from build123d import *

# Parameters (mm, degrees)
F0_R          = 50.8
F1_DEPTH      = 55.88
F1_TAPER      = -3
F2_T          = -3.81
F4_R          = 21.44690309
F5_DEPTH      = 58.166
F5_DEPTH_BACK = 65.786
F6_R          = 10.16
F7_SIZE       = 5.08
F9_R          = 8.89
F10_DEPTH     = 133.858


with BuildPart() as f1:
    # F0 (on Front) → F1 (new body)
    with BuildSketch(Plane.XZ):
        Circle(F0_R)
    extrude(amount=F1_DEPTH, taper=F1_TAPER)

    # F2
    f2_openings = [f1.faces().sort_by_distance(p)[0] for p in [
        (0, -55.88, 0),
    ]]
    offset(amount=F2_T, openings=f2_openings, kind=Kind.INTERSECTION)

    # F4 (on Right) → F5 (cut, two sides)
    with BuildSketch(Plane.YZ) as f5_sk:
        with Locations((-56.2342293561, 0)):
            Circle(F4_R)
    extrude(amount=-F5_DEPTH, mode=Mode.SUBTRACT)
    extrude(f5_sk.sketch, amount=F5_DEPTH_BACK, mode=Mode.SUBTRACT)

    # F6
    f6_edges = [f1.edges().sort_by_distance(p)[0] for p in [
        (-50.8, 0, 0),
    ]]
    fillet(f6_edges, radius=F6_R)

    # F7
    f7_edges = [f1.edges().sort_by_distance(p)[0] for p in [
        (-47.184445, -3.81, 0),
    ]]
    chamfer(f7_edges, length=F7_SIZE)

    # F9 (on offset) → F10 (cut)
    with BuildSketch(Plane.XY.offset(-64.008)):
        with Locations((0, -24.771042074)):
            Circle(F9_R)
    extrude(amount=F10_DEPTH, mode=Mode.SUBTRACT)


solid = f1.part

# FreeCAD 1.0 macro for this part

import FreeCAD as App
import Part
import Sketcher

V = App.Vector
Q = App.Units.Quantity


def edges_at(feature, points):
    """Names of the edges that pass closest to the given points."""
    edges = feature.Shape.Edges
    near = lambda p: min(range(len(edges)), key=lambda i: edges[i].distToShape(Part.Vertex(*p))[0])
    return sorted({f"Edge{near(p) + 1}" for p in points})


def faces_at(feature, points):
    """Names of the faces that lie closest to the given points."""
    faces = feature.Shape.Faces
    near = lambda p: min(range(len(faces)), key=lambda i: faces[i].distToShape(Part.Vertex(*p))[0])
    return sorted({f"Face{near(p) + 1}" for p in points})

doc = App.newDocument("Part")
body = doc.addObject("PartDesign::Body", "Body")

# Sketch on XZ plane
sketch1 = body.newObject("Sketcher::SketchObject", "Sketch")
sketch1.AttachmentSupport = (doc.getObject("XZ_Plane"), [""])
sketch1.MapMode = "FlatFace"
sketch1.addGeometry(Part.Circle(V(0, 0, 0), V(0, 0, 1), 51), False)
sketch1.addConstraint(Sketcher.Constraint("Coincident", 0, 3, -1, 1))
sketch1.addConstraint(Sketcher.Constraint("Diameter", 0, Q("4 in")))
pad1 = body.newObject("PartDesign::Pad", "Pad")
pad1.Profile = sketch1
pad1.Length = Q("2.2 in")
pad1.TaperAngle = 3
doc.recompute()

thickness = body.newObject("PartDesign::Thickness", "Thickness")
thickness.Base = (pad1, faces_at(pad1, [(0, -55.88, 0)]))
thickness.Value = Q("0.15 in")
thickness.Reversed = True
thickness.Join = "Intersection"

# Sketch on YZ plane
sketch2 = body.newObject("Sketcher::SketchObject", "Sketch001")
sketch2.AttachmentSupport = (doc.getObject("YZ_Plane"), [""])
sketch2.MapMode = "FlatFace"
sketch2.addGeometry(Part.Circle(V(-56, 0, 0), V(0, 0, 1), 21), False)
sketch2.addConstraint(Sketcher.Constraint("PointOnObject", 0, 3, -1))
sketch2.addConstraint(Sketcher.Constraint("Diameter", 0, Q("42.893806 mm")))
sketch2.addConstraint(Sketcher.Constraint("DistanceX", 0, 3, -1, 1, Q("56.234229 mm")))
pocket1 = body.newObject("PartDesign::Pocket", "Pocket")
pocket1.Profile = sketch2
pocket1.Type = "ThroughAll"
pocket1.Midplane = True
doc.recompute()

fillet = body.newObject("PartDesign::Fillet", "Fillet")
fillet.Base = (pocket1, edges_at(pocket1, [(-50.8, 0, 0)]))
fillet.Radius = Q("0.4 in")
doc.recompute()

chamfer = body.newObject("PartDesign::Chamfer", "Chamfer")
chamfer.Base = (fillet, edges_at(fillet, [(-47.184, -3.81, 0)]))
chamfer.Size = Q("0.2 in")

# Sketch on XY plane
sketch3 = body.newObject("Sketcher::SketchObject", "Sketch002")
sketch3.AttachmentSupport = (doc.getObject("XY_Plane"), [""])
sketch3.MapMode = "FlatFace"
sketch3.AttachmentOffset = App.Placement(V(0, 0, -2.52 * 25.4), App.Rotation())
sketch3.addGeometry(Part.Circle(V(0, -25, 0), V(0, 0, 1), 9), False)
sketch3.addConstraint(Sketcher.Constraint("PointOnObject", 0, 3, -2))
sketch3.addConstraint(Sketcher.Constraint("Diameter", 0, Q("0.7 in")))
sketch3.addConstraint(Sketcher.Constraint("DistanceY", 0, 3, -1, 1, Q("24.771042 mm")))
pocket2 = body.newObject("PartDesign::Pocket", "Pocket001")
pocket2.Profile = sketch3
pocket2.Length = Q("5.27 in")
pocket2.Reversed = True

doc.recompute()
